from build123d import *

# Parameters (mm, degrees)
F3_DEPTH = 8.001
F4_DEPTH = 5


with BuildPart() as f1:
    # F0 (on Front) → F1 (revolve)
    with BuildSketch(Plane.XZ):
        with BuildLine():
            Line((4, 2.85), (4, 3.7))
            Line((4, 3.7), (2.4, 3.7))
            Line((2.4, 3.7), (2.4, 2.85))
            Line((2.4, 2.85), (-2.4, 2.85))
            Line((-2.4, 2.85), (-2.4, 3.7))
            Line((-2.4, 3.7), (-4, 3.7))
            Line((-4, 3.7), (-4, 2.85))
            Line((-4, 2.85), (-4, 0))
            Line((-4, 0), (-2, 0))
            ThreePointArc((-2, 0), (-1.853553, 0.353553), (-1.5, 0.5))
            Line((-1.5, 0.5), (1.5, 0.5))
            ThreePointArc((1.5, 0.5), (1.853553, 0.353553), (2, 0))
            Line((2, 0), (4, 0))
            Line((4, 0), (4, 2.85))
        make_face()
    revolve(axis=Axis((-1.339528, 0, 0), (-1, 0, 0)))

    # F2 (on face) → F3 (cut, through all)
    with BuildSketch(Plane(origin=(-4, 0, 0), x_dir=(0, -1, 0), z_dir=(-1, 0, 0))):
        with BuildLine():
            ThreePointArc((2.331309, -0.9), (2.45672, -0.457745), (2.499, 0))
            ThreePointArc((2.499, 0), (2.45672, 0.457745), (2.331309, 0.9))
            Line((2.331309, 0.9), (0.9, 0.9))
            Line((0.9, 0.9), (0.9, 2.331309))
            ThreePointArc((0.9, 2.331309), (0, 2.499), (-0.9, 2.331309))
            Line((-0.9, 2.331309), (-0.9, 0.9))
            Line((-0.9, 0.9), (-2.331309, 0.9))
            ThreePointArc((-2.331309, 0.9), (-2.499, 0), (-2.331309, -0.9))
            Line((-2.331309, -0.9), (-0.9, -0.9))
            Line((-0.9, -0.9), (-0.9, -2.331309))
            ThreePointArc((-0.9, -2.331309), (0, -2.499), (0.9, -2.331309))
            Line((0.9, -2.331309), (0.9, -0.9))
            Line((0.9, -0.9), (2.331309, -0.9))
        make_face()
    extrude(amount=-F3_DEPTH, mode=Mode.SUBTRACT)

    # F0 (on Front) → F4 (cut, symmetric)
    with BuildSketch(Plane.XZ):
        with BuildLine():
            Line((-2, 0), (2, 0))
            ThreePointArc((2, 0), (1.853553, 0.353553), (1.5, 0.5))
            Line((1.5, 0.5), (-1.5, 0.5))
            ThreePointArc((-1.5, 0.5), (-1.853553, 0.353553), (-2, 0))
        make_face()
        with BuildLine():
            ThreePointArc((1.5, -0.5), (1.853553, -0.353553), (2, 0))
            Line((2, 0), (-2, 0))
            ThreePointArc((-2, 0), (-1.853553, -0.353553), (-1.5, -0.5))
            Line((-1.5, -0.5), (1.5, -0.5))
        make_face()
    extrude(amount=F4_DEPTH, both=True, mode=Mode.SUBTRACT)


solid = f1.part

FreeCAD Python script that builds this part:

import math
import FreeCAD as App
import Part
import Sketcher

V = App.Vector
Q = App.Units.Quantity

doc = App.newDocument("Part")
body = doc.addObject("PartDesign::Body", "Body")

sketch1 = body.newObject("Sketcher::SketchObject", "Sketch")
sketch1.AttachmentSupport = (doc.getObject("XZ_Plane"), [""])
sketch1.MapMode = "FlatFace"
sketch1.addGeometry(Part.LineSegment(V(4, 3.7, 0), V(2.4, 3.7, 0)), False)
sketch1.addGeometry(Part.LineSegment(V(2.4, 3.7, 0), V(2.4, 2.9, 0)), False)
sketch1.addGeometry(Part.LineSegment(V(2.4, 2.9, 0), V(-2.4, 2.9, 0)), False)
sketch1.addGeometry(Part.LineSegment(V(-2.4, 2.9, 0), V(-2.4, 3.7, 0)), False)
sketch1.addGeometry(Part.LineSegment(V(-2.4, 3.7, 0), V(-4, 3.7, 0)), False)
sketch1.addGeometry(Part.LineSegment(V(-4, 3.7, 0), V(-4, 0, 0)), False)
sketch1.addGeometry(Part.LineSegment(V(-4, 0, 0), V(-2, 0, 0)), False)
sketch1.addGeometry(Part.ArcOfCircle(Part.Circle(V(-1.5, 0, 0), V(0, 0, 1), 0.5), math.radians(90), math.radians(180)), False)
sketch1.addGeometry(Part.LineSegment(V(-1.5, 0.5, 0), V(1.5, 0.5, 0)), False)
sketch1.addGeometry(Part.ArcOfCircle(Part.Circle(V(1.5, 0, 0), V(0, 0, 1), 0.5), math.radians(0), math.radians(90)), False)
sketch1.addGeometry(Part.LineSegment(V(2, 0, 0), V(4, 0, 0)), False)
sketch1.addGeometry(Part.LineSegment(V(4, 0, 0), V(4, 3.7, 0)), False)
sketch1.addConstraint(Sketcher.Constraint("Coincident", 0, 2, 1, 1))
sketch1.addConstraint(Sketcher.Constraint("Coincident", 1, 2, 2, 1))
sketch1.addConstraint(Sketcher.Constraint("Coincident", 2, 2, 3, 1))
sketch1.addConstraint(Sketcher.Constraint("Coincident", 3, 2, 4, 1))
sketch1.addConstraint(Sketcher.Constraint("Coincident", 4, 2, 5, 1))
sketch1.addConstraint(Sketcher.Constraint("Coincident", 5, 2, 6, 1))
sketch1.addConstraint(Sketcher.Constraint("Coincident", 6, 2, 7, 2))
sketch1.addConstraint(Sketcher.Constraint("Coincident", 7, 1, 8, 1))
sketch1.addConstraint(Sketcher.Constraint("Coincident", 8, 2, 9, 2))
sketch1.addConstraint(Sketcher.Constraint("Coincident", 9, 1, 10, 1))
sketch1.addConstraint(Sketcher.Constraint("Coincident", 10, 2, 11, 1))
sketch1.addConstraint(Sketcher.Constraint("Coincident", 11, 2, 0, 1))
sketch1.addConstraint(Sketcher.Constraint("Horizontal", 0))
sketch1.addConstraint(Sketcher.Constraint("Vertical", 1))
sketch1.addConstraint(Sketcher.Constraint("Horizontal", 2))
sketch1.addConstraint(Sketcher.Constraint("Vertical", 3))
sketch1.addConstraint(Sketcher.Constraint("Horizontal", 4))
sketch1.addConstraint(Sketcher.Constraint("Vertical", 5))
sketch1.addConstraint(Sketcher.Constraint("Horizontal", 6))
sketch1.addConstraint(Sketcher.Constraint("Horizontal", 8))
sketch1.addConstraint(Sketcher.Constraint("Horizontal", 10))
sketch1.addConstraint(Sketcher.Constraint("Vertical", 11))
sketch1.addConstraint(Sketcher.Constraint("Equal", 7, 9))
sketch1.addConstraint(Sketcher.Constraint("Symmetric", 7, 3, 9, 3, -1, 1))
sketch1.addConstraint(Sketcher.Constraint("Symmetric", 5, 2, 10, 2, -1, 1))
sketch1.addConstraint(Sketcher.Constraint("Symmetric", 0, 2, 3, 2, -2))
sketch1.addConstraint(Sketcher.Constraint("PointOnObject", 5, 2, -1))
sketch1.addConstraint(Sketcher.Constraint("Vertical", 9, 3, 8, 2))
sketch1.addConstraint(Sketcher.Constraint("Radius", 7, Q("0.500001 mm")))
sketch1.addConstraint(Sketcher.Constraint("DistanceX", 6, 1, 6, 2, Q("2 mm")))
sketch1.addConstraint(Sketcher.Constraint("DistanceX", 8, 1, 8, 2, Q("3 mm")))
sketch1.addConstraint(Sketcher.Constraint("DistanceX", 0, 2, 0, 1, Q("1.6 mm")))
sketch1.addConstraint(Sketcher.Constraint("DistanceX", 2, 2, 2, 1, Q("4.8 mm")))
sketch1.addConstraint(Sketcher.Constraint("DistanceY", 5, 2, 5, 1, Q("3.7 mm")))
sketch1.addConstraint(Sketcher.Constraint("DistanceY", 1, 2, 1, 1, Q("0.85 mm")))
revolution = body.newObject("PartDesign::Revolution", "Revolution")
revolution.Profile = sketch1
revolution.ReferenceAxis = (sketch1, ["H_Axis"])
revolution.Angle = 360

sketch2 = body.newObject("Sketcher::SketchObject", "Sketch001")
sketch2.AttachmentSupport = (doc.getObject("YZ_Plane"), [""])
sketch2.MapMode = "FlatFace"
sketch2.AttachmentOffset = App.Placement(V(0, 0, -4), App.Rotation())
sketch2.addGeometry(Part.ArcOfCircle(Part.Circle(V(0, 0, 0), V(0, 0, 1), 2.5), math.radians(180), math.radians(201)), False)
sketch2.addGeometry(Part.ArcOfCircle(Part.Circle(V(0, 0, 0), V(0, 0, 1), 2.5), math.radians(159), math.radians(180)), False)
sketch2.addGeometry(Part.LineSegment(V(-2.3, 0.9, 0), V(-0.9, 0.9, 0)), False)
sketch2.addGeometry(Part.LineSegment(V(-0.9, 0.9, 0), V(-0.9, 2.3, 0)), False)
sketch2.addGeometry(Part.ArcOfCircle(Part.Circle(V(0, 0, 0), V(0, 0, 1), 2.5), math.radians(69), math.radians(111)), False)
sketch2.addGeometry(Part.LineSegment(V(0.9, 2.3, 0), V(0.9, 0.9, 0)), False)
sketch2.addGeometry(Part.LineSegment(V(0.9, 0.9, 0), V(2.3, 0.9, 0)), False)
sketch2.addGeometry(Part.ArcOfCircle(Part.Circle(V(0, 0, 0), V(0, 0, 1), 2.5), math.radians(-21), math.radians(21)), False)
sketch2.addGeometry(Part.LineSegment(V(2.3, -0.9, 0), V(0.9, -0.9, 0)), False)
sketch2.addGeometry(Part.LineSegment(V(0.9, -0.9, 0), V(0.9, -2.3, 0)), False)
sketch2.addGeometry(Part.ArcOfCircle(Part.Circle(V(0, 0, 0), V(0, 0, 1), 2.5), math.radians(-111), math.radians(-69)), False)
sketch2.addGeometry(Part.LineSegment(V(-0.9, -2.3, 0), V(-0.9, -0.9, 0)), False)
sketch2.addGeometry(Part.LineSegment(V(-0.9, -0.9, 0), V(-2.3, -0.9, 0)), False)
sketch2.addConstraint(Sketcher.Constraint("Coincident", 0, 1, 1, 2))
sketch2.addConstraint(Sketcher.Constraint("Coincident", 1, 1, 2, 1))
sketch2.addConstraint(Sketcher.Constraint("Coincident", 2, 2, 3, 1))
sketch2.addConstraint(Sketcher.Constraint("Coincident", 3, 2, 4, 2))
sketch2.addConstraint(Sketcher.Constraint("Coincident", 4, 1, 5, 1))
sketch2.addConstraint(Sketcher.Constraint("Coincident", 5, 2, 6, 1))
sketch2.addConstraint(Sketcher.Constraint("Coincident", 6, 2, 7, 2))
sketch2.addConstraint(Sketcher.Constraint("Coincident", 7, 1, 8, 1))
sketch2.addConstraint(Sketcher.Constraint("Coincident", 8, 2, 9, 1))
sketch2.addConstraint(Sketcher.Constraint("Coincident", 9, 2, 10, 2))
sketch2.addConstraint(Sketcher.Constraint("Coincident", 10, 1, 11, 1))
sketch2.addConstraint(Sketcher.Constraint("Coincident", 11, 2, 12, 1))
sketch2.addConstraint(Sketcher.Constraint("Coincident", 12, 2, 0, 2))
sketch2.addConstraint(Sketcher.Constraint("Horizontal", 2))
sketch2.addConstraint(Sketcher.Constraint("Vertical", 3))
sketch2.addConstraint(Sketcher.Constraint("Vertical", 5))
sketch2.addConstraint(Sketcher.Constraint("Horizontal", 6))
sketch2.addConstraint(Sketcher.Constraint("Horizontal", 8))
sketch2.addConstraint(Sketcher.Constraint("Vertical", 9))
sketch2.addConstraint(Sketcher.Constraint("Vertical", 11))
sketch2.addConstraint(Sketcher.Constraint("Horizontal", 12))
sketch2.addConstraint(Sketcher.Constraint("Coincident", 4, 3, -1, 1))
sketch2.addConstraint(Sketcher.Constraint("Coincident", 7, 3, -1, 1))
sketch2.addConstraint(Sketcher.Constraint("Coincident", 10, 3, -1, 1))
sketch2.addConstraint(Sketcher.Constraint("Equal", 0, 1))
sketch2.addConstraint(Sketcher.Constraint("Equal", 4, 7))
sketch2.addConstraint(Sketcher.Constraint("Equal", 7, 10))
sketch2.addConstraint(Sketcher.Constraint("Symmetric", 1, 1, 7, 1, -1, 1))
sketch2.addConstraint(Sketcher.Constraint("Symmetric", 5, 2, 11, 2, -1, 1))
sketch2.addConstraint(Sketcher.Constraint("Symmetric", 2, 2, 5, 2, -2))
sketch2.addConstraint(Sketcher.Constraint("PointOnObject", 0, 1, -1))
sketch2.addConstraint(Sketcher.Constraint("Horizontal", 9, 2, 10, 1))
sketch2.addConstraint(Sketcher.Constraint("Vertical", 1, 1, 12, 2))
sketch2.addConstraint(Sketcher.Constraint("Equal", 12, 3))
sketch2.addConstraint(Sketcher.Constraint("Radius", 4, Q("2.499002 mm")))
sketch2.addConstraint(Sketcher.Constraint("DistanceY", -1, 1, 1, 1, Q("0.9 mm")))
sketch2.addConstraint(Sketcher.Constraint("DistanceX", 0, 1, -1, 1, Q("2.499 mm")))
sketch2.addConstraint(Sketcher.Constraint("Radius", 0, Q("2.498973 mm")))
pocket1 = body.newObject("PartDesign::Pocket", "Pocket")
pocket1.Profile = sketch2
pocket1.Type = "ThroughAll"
pocket1.Reversed = True

sketch3 = body.newObject("Sketcher::SketchObject", "Sketch002")
sketch3.AttachmentSupport = (doc.getObject("XZ_Plane"), [""])
sketch3.MapMode = "FlatFace"
sketch3.addGeometry(Part.ArcOfCircle(Part.Circle(V(1.5, 0, 0), V(0, 0, 1), 0.5), math.radians(0), math.radians(90)), False)
sketch3.addGeometry(Part.LineSegment(V(1.5, 0.5, 0), V(-1.5, 0.5, 0)), False)
sketch3.addGeometry(Part.ArcOfCircle(Part.Circle(V(-1.5, 0, 0), V(0, 0, 1), 0.5), math.radians(90), math.radians(180)), False)
sketch3.addGeometry(Part.ArcOfCircle(Part.Circle(V(-1.5, 0, 0), V(0, 0, 1), 0.5), math.radians(-180), math.radians(-90)), False)
sketch3.addGeometry(Part.LineSegment(V(-1.5, -0.5, 0), V(1.5, -0.5, 0)), False)
sketch3.addGeometry(Part.ArcOfCircle(Part.Circle(V(1.5, 0, 0), V(0, 0, 1), 0.5), math.radians(-90), math.radians(0)), False)
sketch3.addConstraint(Sketcher.Constraint("Coincident", 0, 2, 1, 1))
sketch3.addConstraint(Sketcher.Constraint("Coincident", 1, 2, 2, 1))
sketch3.addConstraint(Sketcher.Constraint("Coincident", 2, 2, 3, 1))
sketch3.addConstraint(Sketcher.Constraint("Coincident", 3, 2, 4, 1))
sketch3.addConstraint(Sketcher.Constraint("Coincident", 4, 2, 5, 1))
sketch3.addConstraint(Sketcher.Constraint("Coincident", 5, 2, 0, 1))
sketch3.addConstraint(Sketcher.Constraint("Horizontal", 1))
sketch3.addConstraint(Sketcher.Constraint("Horizontal", 4))
sketch3.addConstraint(Sketcher.Constraint("Coincident", 3, 3, 2, 3))
sketch3.addConstraint(Sketcher.Constraint("Coincident", 5, 3, 0, 3))
sketch3.addConstraint(Sketcher.Constraint("Symmetric", 0, 3, 2, 3, -1, 1))
sketch3.addConstraint(Sketcher.Constraint("PointOnObject", 2, 2, -1))
sketch3.addConstraint(Sketcher.Constraint("PointOnObject", 5, 2, -1))
sketch3.addConstraint(Sketcher.Constraint("Vertical", 5, 3, 0, 2))
sketch3.addConstraint(Sketcher.Constraint("Vertical", 3, 3, 1, 2))
sketch3.addConstraint(Sketcher.Constraint("Vertical", 1, 2, 3, 2))
sketch3.addConstraint(Sketcher.Constraint("Vertical", 0, 2, 4, 2))
sketch3.addConstraint(Sketcher.Constraint("Radius", 0, Q("0.500001 mm")))
sketch3.addConstraint(Sketcher.Constraint("DistanceX", 1, 2, 1, 1, Q("3 mm")))
pocket2 = body.newObject("PartDesign::Pocket", "Pocket001")
pocket2.Profile = sketch3
pocket2.Length = 10
pocket2.Midplane = True

doc.recompute()
